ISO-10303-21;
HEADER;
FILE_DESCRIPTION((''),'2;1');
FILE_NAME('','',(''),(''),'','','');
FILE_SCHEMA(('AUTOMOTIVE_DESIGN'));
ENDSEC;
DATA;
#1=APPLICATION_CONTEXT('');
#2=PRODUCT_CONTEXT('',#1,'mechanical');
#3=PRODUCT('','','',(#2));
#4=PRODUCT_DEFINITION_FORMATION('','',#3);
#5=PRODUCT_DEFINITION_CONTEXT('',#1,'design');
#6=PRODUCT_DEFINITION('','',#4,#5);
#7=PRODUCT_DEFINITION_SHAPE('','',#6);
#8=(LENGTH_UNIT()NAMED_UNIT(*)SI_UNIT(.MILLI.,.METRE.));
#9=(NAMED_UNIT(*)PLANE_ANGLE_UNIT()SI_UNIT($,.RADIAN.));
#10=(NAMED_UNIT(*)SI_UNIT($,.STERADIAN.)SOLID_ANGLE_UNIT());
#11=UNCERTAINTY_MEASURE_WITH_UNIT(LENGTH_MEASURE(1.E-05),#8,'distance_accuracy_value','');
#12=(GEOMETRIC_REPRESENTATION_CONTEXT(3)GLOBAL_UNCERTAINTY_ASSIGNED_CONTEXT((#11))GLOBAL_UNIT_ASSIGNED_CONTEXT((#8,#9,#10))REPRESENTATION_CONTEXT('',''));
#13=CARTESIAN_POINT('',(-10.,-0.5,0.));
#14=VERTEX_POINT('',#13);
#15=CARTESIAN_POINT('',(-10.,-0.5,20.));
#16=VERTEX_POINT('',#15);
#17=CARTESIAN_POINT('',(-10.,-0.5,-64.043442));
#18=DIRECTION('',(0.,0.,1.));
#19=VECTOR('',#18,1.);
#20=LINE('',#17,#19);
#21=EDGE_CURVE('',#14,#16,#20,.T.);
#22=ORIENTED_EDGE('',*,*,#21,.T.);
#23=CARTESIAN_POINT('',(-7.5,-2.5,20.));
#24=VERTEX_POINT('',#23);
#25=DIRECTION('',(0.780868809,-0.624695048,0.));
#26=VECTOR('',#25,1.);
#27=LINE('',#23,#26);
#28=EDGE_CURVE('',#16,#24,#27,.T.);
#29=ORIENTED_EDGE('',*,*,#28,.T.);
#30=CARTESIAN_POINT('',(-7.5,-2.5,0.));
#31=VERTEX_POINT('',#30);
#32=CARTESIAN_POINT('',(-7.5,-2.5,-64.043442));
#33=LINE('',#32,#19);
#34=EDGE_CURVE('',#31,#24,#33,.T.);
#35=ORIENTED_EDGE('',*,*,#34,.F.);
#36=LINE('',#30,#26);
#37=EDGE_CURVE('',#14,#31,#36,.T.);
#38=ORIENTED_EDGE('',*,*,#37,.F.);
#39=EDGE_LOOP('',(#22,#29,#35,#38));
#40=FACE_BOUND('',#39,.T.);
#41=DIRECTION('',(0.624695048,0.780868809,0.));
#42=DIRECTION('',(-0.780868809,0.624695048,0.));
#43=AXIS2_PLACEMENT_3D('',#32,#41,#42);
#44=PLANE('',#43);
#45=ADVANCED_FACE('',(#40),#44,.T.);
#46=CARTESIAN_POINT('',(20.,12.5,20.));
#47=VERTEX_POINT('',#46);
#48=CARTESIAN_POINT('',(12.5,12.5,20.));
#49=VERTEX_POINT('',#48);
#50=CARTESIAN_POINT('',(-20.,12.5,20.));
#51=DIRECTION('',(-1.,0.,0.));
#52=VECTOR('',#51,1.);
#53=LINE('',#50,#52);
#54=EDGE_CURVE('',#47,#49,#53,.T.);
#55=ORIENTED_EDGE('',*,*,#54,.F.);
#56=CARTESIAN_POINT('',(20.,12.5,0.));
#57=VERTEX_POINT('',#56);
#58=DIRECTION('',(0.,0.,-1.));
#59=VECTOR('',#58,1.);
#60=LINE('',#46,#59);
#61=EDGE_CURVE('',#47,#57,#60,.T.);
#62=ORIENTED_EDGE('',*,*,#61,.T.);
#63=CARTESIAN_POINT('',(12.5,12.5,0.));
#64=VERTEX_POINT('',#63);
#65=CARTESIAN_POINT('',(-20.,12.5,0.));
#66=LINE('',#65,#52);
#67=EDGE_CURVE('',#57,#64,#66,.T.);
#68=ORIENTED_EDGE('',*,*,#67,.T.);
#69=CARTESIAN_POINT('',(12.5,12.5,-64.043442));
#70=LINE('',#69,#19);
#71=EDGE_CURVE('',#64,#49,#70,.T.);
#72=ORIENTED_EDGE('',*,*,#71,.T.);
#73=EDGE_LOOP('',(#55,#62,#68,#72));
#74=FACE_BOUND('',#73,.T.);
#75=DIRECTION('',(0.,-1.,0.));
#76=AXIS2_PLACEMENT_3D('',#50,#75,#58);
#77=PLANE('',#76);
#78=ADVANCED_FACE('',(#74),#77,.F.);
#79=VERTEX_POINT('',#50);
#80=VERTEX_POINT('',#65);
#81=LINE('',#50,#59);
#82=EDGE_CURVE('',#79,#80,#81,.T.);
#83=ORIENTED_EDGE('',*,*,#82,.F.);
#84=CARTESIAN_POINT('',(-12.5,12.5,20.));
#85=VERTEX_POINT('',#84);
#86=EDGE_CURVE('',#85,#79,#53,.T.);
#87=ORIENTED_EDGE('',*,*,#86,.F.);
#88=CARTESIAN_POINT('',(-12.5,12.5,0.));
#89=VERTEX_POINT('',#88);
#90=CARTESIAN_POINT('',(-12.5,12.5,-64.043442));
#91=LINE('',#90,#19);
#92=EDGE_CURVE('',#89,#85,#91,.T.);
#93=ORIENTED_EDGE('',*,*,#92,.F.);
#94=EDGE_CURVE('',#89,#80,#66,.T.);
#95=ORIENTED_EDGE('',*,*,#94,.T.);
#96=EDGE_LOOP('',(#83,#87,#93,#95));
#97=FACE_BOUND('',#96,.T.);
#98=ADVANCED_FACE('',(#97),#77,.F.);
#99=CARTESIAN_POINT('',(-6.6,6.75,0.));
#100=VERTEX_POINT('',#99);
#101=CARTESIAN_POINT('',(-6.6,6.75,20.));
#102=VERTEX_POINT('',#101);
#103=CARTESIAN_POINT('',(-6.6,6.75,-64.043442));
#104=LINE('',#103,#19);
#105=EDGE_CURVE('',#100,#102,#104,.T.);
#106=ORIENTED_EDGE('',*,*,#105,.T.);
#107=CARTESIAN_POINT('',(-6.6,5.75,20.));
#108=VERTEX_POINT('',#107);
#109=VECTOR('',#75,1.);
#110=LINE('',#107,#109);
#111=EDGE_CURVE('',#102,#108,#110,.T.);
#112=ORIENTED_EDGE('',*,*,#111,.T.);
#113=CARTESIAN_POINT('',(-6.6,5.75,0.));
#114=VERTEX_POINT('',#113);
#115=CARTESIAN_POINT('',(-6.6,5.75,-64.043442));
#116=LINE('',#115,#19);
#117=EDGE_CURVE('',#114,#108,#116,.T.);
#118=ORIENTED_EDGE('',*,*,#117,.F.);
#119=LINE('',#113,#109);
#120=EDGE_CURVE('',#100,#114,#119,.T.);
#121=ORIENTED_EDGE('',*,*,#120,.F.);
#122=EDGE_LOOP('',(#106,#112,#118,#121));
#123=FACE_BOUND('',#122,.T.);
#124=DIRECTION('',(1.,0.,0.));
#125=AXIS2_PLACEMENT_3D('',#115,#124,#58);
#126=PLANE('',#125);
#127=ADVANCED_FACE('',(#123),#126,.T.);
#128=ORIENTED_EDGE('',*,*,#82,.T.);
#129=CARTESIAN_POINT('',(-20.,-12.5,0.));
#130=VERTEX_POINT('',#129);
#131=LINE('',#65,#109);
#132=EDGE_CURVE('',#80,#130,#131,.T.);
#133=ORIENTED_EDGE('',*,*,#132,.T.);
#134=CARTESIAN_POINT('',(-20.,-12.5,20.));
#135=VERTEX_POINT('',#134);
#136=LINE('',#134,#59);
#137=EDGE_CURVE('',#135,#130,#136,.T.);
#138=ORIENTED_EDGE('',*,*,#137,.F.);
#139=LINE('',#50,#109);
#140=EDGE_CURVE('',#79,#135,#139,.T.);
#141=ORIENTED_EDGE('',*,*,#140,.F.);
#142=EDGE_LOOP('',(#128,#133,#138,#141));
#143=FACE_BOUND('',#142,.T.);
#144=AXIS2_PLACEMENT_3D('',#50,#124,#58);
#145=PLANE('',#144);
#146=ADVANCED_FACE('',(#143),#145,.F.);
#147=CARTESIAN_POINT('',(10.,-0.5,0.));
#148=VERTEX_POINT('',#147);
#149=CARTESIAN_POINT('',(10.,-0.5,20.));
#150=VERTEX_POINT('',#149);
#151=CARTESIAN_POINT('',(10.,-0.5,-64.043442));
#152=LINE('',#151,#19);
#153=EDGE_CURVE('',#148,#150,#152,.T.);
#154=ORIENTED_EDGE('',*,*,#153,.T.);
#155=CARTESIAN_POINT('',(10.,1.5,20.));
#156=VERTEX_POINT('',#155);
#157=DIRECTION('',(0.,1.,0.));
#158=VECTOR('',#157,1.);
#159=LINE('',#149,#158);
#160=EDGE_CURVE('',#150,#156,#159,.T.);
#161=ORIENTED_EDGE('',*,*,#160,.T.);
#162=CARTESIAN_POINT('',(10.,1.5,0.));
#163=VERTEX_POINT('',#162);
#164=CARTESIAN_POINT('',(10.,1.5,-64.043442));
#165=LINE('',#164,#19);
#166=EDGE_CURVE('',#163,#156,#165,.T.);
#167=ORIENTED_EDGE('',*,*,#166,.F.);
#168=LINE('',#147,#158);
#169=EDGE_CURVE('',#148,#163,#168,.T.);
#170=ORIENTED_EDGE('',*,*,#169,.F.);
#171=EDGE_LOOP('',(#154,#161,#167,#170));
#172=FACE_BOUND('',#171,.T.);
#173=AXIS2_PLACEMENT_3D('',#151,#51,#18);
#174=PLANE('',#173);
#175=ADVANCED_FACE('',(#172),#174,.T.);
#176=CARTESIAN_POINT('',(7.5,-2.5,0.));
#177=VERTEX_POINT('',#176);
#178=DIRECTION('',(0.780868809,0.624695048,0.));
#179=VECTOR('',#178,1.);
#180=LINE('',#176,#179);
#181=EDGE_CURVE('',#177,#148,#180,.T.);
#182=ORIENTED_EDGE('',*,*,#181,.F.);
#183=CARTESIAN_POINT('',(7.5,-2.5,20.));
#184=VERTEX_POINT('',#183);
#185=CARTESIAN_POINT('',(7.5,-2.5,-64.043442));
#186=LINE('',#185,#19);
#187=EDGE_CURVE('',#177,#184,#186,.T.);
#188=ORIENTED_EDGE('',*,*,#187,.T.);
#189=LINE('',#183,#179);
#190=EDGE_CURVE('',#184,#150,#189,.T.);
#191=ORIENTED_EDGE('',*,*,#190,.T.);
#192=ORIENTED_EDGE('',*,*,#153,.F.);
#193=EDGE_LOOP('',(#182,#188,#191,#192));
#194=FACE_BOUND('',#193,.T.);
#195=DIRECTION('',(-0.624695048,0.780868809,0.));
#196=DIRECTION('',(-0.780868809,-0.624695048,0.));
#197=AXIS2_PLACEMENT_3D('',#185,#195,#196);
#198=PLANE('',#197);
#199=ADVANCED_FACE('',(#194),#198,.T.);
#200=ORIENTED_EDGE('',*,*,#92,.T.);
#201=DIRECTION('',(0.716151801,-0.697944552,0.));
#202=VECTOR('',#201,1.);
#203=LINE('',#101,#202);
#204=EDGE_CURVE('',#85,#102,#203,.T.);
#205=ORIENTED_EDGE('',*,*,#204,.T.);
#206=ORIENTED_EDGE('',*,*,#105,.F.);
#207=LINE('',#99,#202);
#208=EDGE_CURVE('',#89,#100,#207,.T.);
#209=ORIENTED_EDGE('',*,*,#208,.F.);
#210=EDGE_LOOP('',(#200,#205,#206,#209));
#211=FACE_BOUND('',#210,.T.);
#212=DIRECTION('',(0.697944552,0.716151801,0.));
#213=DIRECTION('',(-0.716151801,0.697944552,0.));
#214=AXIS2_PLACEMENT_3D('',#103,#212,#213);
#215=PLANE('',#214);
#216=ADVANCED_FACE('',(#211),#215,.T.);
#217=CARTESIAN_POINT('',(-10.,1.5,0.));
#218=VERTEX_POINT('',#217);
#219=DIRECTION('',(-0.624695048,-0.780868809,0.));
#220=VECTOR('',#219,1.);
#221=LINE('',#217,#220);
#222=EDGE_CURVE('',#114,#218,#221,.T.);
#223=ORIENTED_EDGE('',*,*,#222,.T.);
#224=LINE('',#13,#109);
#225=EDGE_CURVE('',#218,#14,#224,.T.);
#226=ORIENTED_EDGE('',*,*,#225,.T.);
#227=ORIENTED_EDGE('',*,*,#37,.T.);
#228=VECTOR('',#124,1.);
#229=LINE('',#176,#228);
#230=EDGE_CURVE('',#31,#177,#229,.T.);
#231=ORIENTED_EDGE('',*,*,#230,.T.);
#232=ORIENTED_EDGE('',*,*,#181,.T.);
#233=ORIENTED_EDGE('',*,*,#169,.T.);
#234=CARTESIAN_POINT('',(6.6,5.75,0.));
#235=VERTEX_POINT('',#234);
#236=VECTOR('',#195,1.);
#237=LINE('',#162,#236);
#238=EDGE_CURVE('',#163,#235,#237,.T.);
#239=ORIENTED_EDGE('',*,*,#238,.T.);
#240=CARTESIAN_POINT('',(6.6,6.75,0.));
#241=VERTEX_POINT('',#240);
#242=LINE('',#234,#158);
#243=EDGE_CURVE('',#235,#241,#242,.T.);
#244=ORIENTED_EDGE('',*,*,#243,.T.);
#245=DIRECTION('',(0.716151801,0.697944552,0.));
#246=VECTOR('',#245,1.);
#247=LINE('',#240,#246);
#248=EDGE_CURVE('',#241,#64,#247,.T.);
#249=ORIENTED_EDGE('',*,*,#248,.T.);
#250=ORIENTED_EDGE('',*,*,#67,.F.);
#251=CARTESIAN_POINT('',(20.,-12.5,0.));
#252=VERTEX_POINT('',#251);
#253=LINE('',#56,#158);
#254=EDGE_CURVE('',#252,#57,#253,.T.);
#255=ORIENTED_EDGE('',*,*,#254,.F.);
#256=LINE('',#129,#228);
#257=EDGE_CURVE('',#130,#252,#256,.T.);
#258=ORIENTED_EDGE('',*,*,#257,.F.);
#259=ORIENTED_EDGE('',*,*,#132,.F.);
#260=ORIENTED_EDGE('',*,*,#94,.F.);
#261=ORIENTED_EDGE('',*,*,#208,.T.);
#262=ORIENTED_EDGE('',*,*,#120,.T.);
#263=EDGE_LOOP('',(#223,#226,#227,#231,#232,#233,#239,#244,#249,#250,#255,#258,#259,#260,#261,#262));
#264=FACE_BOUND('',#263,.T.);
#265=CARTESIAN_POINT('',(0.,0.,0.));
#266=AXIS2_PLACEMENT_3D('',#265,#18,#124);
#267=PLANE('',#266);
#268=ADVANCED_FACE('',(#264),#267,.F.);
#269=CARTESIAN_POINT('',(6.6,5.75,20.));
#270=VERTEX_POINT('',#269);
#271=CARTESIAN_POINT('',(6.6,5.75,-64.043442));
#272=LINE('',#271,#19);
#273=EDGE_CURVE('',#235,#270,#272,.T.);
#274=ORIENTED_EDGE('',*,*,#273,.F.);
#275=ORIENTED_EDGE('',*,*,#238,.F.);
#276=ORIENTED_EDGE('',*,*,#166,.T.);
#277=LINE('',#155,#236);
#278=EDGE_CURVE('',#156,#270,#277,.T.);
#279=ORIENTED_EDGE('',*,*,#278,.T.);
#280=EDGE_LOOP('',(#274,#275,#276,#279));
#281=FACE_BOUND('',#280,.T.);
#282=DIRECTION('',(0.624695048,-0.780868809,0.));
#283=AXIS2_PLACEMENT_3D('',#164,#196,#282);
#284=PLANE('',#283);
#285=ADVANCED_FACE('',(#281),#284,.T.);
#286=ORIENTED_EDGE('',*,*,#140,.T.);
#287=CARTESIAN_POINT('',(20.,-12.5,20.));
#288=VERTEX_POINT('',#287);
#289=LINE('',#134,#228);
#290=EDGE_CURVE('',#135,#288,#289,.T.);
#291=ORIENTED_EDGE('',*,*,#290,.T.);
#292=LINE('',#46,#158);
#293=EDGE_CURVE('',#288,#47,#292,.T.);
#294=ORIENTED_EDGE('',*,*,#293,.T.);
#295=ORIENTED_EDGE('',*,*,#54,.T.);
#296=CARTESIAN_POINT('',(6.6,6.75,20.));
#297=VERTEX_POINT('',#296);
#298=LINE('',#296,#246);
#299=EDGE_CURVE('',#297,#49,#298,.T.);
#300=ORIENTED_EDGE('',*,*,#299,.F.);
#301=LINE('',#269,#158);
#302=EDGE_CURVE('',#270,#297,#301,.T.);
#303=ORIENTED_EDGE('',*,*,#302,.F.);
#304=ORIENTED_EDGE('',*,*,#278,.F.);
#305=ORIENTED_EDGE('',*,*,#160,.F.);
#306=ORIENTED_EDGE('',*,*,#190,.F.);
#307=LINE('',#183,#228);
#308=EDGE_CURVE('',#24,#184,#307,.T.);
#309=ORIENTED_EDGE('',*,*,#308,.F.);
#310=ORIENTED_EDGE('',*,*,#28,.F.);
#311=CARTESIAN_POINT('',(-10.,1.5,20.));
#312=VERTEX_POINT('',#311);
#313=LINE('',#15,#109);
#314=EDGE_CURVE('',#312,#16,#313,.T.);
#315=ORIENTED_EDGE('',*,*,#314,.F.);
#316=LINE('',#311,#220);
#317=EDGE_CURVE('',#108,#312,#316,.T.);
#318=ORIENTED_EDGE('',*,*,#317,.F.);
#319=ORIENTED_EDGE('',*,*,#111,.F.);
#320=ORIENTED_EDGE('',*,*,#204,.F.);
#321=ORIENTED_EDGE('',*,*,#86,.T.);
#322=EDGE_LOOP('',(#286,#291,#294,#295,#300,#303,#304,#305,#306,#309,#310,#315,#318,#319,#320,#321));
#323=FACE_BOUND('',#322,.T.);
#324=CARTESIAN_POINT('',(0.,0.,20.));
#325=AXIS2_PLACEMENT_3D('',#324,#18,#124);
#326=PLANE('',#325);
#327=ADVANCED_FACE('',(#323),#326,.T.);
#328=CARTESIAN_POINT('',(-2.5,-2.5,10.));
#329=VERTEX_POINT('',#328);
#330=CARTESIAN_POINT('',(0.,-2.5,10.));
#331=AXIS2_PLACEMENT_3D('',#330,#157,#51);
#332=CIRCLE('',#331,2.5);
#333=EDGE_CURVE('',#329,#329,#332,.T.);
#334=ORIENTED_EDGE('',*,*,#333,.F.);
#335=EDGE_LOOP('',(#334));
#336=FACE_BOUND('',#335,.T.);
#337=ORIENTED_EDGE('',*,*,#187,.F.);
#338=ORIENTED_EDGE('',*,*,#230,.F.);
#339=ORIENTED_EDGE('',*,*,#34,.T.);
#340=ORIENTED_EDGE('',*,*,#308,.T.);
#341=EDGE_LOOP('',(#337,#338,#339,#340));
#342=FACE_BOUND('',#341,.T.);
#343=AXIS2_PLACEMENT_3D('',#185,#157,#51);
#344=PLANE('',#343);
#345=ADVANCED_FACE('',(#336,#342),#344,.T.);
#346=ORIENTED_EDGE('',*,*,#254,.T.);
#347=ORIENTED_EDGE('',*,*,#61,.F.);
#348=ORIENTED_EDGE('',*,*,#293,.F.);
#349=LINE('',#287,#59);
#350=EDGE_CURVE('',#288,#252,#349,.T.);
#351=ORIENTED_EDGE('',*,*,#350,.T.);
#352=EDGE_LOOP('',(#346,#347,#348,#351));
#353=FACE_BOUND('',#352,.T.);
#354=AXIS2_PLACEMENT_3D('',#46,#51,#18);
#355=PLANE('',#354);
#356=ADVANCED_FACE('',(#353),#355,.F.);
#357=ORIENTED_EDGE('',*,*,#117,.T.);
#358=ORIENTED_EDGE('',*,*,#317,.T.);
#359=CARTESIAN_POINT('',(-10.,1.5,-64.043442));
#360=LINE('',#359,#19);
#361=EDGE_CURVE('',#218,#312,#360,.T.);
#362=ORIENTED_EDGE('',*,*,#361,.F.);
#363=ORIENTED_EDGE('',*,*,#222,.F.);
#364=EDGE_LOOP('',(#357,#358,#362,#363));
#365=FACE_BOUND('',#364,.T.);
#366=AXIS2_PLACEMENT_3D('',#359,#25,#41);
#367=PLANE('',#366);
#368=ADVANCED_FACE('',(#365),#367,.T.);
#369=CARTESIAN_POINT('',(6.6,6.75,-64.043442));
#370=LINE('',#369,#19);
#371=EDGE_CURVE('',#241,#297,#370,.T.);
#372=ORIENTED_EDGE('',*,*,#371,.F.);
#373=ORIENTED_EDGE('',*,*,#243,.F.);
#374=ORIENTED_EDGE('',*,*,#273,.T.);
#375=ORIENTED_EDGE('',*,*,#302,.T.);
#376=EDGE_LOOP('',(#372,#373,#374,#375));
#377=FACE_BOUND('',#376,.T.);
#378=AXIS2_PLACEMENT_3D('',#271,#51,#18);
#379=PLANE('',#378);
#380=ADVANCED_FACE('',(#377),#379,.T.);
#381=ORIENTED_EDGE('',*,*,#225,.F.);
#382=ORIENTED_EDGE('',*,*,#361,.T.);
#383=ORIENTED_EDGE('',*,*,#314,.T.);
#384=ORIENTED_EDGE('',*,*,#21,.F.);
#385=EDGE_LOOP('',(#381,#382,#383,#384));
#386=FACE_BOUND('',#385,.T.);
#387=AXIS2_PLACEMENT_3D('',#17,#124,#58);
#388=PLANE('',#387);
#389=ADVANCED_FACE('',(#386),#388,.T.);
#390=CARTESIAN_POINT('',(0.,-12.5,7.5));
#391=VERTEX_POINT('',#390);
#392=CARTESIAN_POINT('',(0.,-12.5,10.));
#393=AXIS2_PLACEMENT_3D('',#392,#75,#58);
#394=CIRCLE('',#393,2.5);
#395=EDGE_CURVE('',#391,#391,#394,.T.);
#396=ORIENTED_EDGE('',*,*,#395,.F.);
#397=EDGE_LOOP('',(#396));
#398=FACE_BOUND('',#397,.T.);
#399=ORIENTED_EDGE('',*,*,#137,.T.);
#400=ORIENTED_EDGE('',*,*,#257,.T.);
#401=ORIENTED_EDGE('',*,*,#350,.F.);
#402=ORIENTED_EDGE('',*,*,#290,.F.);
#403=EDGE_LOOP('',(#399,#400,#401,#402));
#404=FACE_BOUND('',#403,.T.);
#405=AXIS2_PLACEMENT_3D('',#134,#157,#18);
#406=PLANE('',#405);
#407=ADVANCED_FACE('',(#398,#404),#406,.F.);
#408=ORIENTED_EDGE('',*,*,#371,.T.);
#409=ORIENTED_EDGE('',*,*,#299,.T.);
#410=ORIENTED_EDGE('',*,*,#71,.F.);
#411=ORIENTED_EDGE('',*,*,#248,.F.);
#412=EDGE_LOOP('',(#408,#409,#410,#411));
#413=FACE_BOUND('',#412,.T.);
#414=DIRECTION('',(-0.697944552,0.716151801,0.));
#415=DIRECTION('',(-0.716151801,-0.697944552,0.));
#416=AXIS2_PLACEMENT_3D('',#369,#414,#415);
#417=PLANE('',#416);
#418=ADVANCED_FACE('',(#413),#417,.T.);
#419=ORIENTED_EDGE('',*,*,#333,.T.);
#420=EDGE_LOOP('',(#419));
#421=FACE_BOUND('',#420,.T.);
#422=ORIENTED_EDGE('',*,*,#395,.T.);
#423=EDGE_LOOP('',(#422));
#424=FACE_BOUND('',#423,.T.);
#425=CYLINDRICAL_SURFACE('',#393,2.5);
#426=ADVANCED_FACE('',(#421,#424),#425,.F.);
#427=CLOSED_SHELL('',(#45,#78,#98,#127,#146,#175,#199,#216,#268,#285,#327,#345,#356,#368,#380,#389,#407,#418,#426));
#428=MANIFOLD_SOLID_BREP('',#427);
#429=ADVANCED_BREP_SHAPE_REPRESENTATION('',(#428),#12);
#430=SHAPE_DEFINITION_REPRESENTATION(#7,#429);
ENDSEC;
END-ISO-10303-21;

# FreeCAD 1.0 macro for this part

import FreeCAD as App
import Part
import Sketcher
from FreeCAD import Vector
Q = App.Units.Quantity


def add_polygon(sketch, points):
    """Adds a closed chain of lines whose ends are joined by coincident constraints."""
    first, n = sketch.GeometryCount, len(points)
    for a, b in zip(points, points[1:] + points[:1]):
        sketch.addGeometry(Part.LineSegment(App.Vector(*a, 0), App.Vector(*b, 0)), False)
    for i in range(n):
        sketch.addConstraint(Sketcher.Constraint("Coincident", first + i, 2, first + (i + 1) % n, 1))

doc = App.newDocument("Part")
body = doc.addObject("PartDesign::Body", "Body")

sketch1 = body.newObject("Sketcher::SketchObject", "Sketch")
sketch1.AttachmentSupport = (doc.getObject("XY_Plane"), [""])
sketch1.MapMode = "FlatFace"
add_polygon(sketch1, [(-20, 12), (-20, -12), (20, -12), (20, 12)])
sketch1.addConstraint([
    Sketcher.Constraint("Vertical", 0),
    Sketcher.Constraint("Horizontal", 1),
    Sketcher.Constraint("Vertical", 2),
    Sketcher.Constraint("Horizontal", 3),
    Sketcher.Constraint("Symmetric", 0, 2, 2, 2, -1, 1),
    Sketcher.Constraint("DistanceX", 1, 1, 1, 2, Q("40 mm")),
    Sketcher.Constraint("DistanceY", 0, 2, 0, 1, Q("25 mm")),
])
pad1 = body.newObject("PartDesign::Pad", "Pad")
pad1.Profile = sketch1
pad1.Length = 20

sketch2 = body.newObject("Sketcher::SketchObject", "Sketch001")
sketch2.AttachmentSupport = (doc.getObject("XY_Plane"), [""])
sketch2.MapMode = "FlatFace"
add_polygon(sketch2, [(78.4, 76.7), (12.5, 12.5), (6.6, 6.8), (6.6, 5.8), (10, 1.5), (10, -0.5), (7.5, -2.5), (-7.5, -2.5), (-10, -0.5), (-10, 1.5), (-6.6, 5.8), (-6.6, 6.8), (-12.5, 12.5), (-78.4, 76.7), (-78.4, 260.7), (78.4, 260.7)])
sketch2.addConstraint([
    Sketcher.Constraint("Vertical", 2),
    Sketcher.Constraint("Vertical", 4),
    Sketcher.Constraint("Horizontal", 6),
    Sketcher.Constraint("Vertical", 8),
    Sketcher.Constraint("Vertical", 10),
    Sketcher.Constraint("Vertical", 13),
    Sketcher.Constraint("Horizontal", 14),
    Sketcher.Constraint("Vertical", 15),
    Sketcher.Constraint("Symmetric", 4, 2, 7, 2, -2),
    Sketcher.Constraint("Symmetric", 2, 2, 9, 2, -2),
    Sketcher.Constraint("Symmetric", 0, 2, 11, 2, -2),
    Sketcher.Constraint("Symmetric", 12, 2, 15, 2, -2),
    Sketcher.Constraint("Parallel", 0, 1),
    Sketcher.Constraint("Perpendicular", 3, 5),
    Sketcher.Constraint("Perpendicular", 7, 9),
    Sketcher.Constraint("Parallel", 11, 12),
    Sketcher.Constraint("Horizontal", 3, 2, 8, 2),
    Sketcher.Constraint("DistanceX", 6, 2, 6, 1, Q("15 mm")),
    Sketcher.Constraint("DistanceY", 2, 2, 2, 1, Q("1 mm")),
    Sketcher.Constraint("DistanceY", 4, 2, 4, 1, Q("2 mm")),
    Sketcher.Constraint("DistanceX", -1, 1, 3, 2, Q("10 mm")),
    Sketcher.Constraint("DistanceY", 3, 2, 0, 2, Q("11 mm")),
    Sketcher.Constraint("DistanceY", 5, 2, 4, 2, Q("2 mm")),
    Sketcher.Constraint("DistanceX", 5, 2, 0, 2, Q("5 mm")),
    Sketcher.Constraint("DistanceY", -1, 1, 0, 2, Q("12.5 mm")),
    Sketcher.Constraint("DistanceX", -1, 1, 1, 2, Q("6.6 mm")),
    Sketcher.Constraint("DistanceX", 14, 1, 14, 2, Q("156.780665 mm")),
    Sketcher.Constraint("DistanceY", 13, 1, 13, 2, Q("184.012195 mm")),
])
pocket1 = body.newObject("PartDesign::Pocket", "Pocket")
pocket1.Profile = sketch2
pocket1.Type = "ThroughAll"
pocket1.Midplane = True

sketch3 = body.newObject("Sketcher::SketchObject", "Sketch002")
sketch3.AttachmentSupport = (doc.getObject("XZ_Plane"), [""])
sketch3.MapMode = "FlatFace"
sketch3.AttachmentOffset = App.Placement(Vector(0, 0, 12.5), App.Rotation())
sketch3.addGeometry(Part.Circle(Vector(0, 10, 0), Vector(0, 0, 1), 2.5), False)
sketch3.addConstraint([
    Sketcher.Constraint("PointOnObject", 0, 3, -2),
    Sketcher.Constraint("Diameter", 0, Q("5 mm")),
    Sketcher.Constraint("DistanceY", -1, 1, 0, 3, Q("10 mm")),
])
doc.recompute()
hole = body.newObject("PartDesign::Hole", "Hole")
hole.Profile = sketch3
hole.ThreadType = "None"
hole.Diameter = 5
hole.DepthType = "Dimension"
hole.Depth = 18
hole.DrillPoint = "Angled"
hole.DrillPointAngle = 118

doc.recompute()
